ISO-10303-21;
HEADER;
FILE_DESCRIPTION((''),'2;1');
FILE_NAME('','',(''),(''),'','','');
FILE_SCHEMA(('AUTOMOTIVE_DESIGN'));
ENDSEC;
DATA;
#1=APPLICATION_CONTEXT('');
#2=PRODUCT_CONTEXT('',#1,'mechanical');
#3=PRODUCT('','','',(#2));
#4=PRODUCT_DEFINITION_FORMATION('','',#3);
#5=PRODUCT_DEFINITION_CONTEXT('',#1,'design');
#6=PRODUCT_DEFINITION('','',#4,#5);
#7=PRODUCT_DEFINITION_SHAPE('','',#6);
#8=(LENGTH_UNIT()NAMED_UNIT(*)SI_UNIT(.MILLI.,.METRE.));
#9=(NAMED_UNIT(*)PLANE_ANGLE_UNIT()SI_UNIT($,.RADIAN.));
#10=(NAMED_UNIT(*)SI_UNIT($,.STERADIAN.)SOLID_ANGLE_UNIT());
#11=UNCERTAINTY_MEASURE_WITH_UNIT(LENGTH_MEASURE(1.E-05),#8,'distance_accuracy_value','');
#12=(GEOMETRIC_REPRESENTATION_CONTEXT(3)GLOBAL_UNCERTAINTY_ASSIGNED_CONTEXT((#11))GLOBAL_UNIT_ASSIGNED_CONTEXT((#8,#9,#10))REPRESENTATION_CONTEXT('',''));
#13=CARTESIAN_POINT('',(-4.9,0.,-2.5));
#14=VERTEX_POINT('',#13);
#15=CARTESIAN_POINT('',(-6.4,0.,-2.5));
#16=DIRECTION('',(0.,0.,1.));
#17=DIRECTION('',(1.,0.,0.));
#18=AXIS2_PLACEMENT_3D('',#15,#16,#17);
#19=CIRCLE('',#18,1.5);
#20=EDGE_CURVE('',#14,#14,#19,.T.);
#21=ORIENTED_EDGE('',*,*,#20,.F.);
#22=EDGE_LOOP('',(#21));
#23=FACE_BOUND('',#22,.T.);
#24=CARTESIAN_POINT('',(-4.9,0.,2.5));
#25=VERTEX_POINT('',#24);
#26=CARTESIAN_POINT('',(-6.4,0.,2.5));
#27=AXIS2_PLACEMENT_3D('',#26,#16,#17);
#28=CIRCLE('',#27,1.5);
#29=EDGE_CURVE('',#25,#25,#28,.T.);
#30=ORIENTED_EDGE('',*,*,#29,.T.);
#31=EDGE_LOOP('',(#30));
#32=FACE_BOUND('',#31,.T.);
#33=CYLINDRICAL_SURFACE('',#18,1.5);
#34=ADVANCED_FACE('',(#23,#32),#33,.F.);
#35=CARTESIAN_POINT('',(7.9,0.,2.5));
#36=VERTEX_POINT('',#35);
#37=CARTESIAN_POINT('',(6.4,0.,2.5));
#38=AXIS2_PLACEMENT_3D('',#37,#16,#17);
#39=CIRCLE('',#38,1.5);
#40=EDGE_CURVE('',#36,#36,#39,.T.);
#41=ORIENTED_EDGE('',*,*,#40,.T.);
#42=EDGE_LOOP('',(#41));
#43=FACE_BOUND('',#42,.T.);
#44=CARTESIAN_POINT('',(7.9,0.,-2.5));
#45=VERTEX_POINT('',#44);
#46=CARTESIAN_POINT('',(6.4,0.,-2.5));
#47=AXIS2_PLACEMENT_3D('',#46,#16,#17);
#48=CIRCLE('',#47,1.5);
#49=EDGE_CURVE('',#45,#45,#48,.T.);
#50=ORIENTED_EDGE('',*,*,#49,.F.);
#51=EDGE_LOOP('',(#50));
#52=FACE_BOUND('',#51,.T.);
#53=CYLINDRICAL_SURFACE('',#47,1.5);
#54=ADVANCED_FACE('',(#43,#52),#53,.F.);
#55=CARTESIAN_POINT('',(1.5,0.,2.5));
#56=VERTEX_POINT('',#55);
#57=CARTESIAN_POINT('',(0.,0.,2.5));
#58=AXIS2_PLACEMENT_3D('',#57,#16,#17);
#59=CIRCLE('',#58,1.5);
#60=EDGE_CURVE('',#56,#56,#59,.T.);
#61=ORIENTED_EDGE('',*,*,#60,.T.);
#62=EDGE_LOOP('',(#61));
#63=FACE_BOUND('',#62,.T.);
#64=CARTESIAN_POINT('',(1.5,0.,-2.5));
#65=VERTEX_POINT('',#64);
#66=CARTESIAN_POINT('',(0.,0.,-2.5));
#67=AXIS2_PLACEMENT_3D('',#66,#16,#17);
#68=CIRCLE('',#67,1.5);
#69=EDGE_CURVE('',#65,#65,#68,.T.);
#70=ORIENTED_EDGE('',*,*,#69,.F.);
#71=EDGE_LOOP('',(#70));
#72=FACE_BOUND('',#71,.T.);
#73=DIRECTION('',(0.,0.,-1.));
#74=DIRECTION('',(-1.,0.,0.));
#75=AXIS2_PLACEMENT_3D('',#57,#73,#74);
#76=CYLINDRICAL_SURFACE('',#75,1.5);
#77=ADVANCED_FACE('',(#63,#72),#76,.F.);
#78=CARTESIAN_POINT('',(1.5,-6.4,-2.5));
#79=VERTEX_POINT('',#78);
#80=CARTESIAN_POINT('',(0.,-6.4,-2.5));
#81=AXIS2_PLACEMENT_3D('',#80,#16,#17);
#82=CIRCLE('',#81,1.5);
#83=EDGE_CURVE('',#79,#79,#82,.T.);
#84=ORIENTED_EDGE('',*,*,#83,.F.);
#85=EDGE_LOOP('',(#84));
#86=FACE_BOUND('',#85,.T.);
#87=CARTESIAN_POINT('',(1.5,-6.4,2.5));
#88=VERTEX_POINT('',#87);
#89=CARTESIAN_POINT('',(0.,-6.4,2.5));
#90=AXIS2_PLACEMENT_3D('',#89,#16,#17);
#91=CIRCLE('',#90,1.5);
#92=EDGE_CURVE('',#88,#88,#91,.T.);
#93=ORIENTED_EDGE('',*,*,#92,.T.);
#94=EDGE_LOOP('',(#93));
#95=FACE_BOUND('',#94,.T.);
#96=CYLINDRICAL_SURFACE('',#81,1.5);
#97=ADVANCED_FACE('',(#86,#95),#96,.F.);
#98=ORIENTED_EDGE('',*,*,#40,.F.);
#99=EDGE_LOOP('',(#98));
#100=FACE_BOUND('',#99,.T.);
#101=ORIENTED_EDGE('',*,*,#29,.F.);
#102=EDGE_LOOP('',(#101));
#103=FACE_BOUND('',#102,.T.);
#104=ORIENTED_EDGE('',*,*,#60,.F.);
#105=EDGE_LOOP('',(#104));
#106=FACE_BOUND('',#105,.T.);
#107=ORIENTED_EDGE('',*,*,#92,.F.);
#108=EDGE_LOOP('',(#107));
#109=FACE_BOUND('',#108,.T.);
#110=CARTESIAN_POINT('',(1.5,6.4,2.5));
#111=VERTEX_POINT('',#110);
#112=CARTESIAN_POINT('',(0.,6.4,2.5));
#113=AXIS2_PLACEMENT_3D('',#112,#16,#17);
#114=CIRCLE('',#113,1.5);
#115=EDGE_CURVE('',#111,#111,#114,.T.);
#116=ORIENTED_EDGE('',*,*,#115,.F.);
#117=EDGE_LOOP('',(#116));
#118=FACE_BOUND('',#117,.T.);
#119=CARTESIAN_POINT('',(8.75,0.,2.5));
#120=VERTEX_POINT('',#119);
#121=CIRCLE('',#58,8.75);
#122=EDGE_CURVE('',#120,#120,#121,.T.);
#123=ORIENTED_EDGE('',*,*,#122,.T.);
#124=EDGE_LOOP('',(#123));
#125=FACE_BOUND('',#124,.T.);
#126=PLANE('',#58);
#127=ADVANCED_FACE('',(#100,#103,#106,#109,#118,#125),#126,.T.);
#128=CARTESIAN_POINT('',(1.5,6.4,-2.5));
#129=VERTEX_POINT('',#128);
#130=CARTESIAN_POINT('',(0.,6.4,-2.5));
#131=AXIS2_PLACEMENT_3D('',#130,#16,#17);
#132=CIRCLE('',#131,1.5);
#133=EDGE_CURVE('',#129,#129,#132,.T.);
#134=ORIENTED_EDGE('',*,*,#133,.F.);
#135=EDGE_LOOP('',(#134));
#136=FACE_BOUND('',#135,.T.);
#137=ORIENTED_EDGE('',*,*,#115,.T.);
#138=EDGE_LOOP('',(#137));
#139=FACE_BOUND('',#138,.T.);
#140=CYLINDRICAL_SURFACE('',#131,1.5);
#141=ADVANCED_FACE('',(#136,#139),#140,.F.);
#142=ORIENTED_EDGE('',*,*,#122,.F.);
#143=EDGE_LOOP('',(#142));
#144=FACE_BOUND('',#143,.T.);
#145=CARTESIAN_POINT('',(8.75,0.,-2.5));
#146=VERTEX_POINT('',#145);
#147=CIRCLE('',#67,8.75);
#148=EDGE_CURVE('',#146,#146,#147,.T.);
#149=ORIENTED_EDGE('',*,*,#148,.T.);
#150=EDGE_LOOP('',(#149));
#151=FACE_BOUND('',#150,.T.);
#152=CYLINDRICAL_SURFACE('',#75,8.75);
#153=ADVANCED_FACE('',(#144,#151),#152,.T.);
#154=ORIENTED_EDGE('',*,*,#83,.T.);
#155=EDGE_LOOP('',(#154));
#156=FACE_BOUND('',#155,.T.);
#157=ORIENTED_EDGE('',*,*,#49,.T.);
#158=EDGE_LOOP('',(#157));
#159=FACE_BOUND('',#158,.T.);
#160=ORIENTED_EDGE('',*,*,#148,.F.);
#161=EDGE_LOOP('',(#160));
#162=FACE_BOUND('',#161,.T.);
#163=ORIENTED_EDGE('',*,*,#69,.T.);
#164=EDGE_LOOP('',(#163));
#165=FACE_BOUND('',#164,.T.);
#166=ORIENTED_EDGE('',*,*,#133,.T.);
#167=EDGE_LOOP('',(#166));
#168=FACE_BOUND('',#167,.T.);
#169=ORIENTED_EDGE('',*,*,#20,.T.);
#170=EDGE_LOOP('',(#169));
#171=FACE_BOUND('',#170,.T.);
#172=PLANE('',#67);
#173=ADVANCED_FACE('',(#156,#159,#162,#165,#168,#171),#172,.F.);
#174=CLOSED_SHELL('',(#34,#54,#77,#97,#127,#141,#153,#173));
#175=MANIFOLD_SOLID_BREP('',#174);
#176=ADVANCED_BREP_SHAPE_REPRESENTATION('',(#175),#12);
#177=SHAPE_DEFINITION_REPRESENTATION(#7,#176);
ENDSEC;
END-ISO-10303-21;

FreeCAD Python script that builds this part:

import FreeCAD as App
import Part
import Sketcher

V = App.Vector

doc = App.newDocument("Part")
body = doc.addObject("PartDesign::Body", "Body")

# Sketch on XY plane
sketch1 = body.newObject("Sketcher::SketchObject", "Sketch")
sketch1.AttachmentSupport = (doc.getObject("XY_Plane"), [""])
sketch1.MapMode = "FlatFace"
sketch1.addGeometry([
    Part.Circle(V(0, 0, 0), V(0, 0, 1), 8.8),
    Part.Circle(V(0, 0, 0), V(0, 0, 1), 1.5),
], False)
sketch1.addConstraint([
    Sketcher.Constraint("Coincident", 0, 3, -1, 1),
    Sketcher.Constraint("Coincident", 1, 3, -1, 1),
    Sketcher.Constraint("Diameter", 1, 3.0),
    Sketcher.Constraint("Diameter", 0, 17.5),
])
pad1 = body.newObject("PartDesign::Pad", "Pad")
pad1.Profile = sketch1
pad1.Length = 5
pad1.Midplane = True

# Sketch on XY plane
sketch2 = body.newObject("Sketcher::SketchObject", "Sketch001")
sketch2.AttachmentSupport = (doc.getObject("XY_Plane"), [""])
sketch2.MapMode = "FlatFace"
sketch2.addGeometry([
    Part.Circle(V(0, 6.4, 0), V(0, 0, 1), 1.5),
    Part.Circle(V(6.4, 0, 0), V(0, 0, 1), 1.5),
    Part.Circle(V(0, -6.4, 0), V(0, 0, 1), 1.5),
    Part.Circle(V(-6.4, 0, 0), V(0, 0, 1), 1.5),
], False)
sketch2.addConstraint([
    Sketcher.Constraint("Equal", 0, 1),
    Sketcher.Constraint("Equal", 1, 2),
    Sketcher.Constraint("Equal", 2, 3),
    Sketcher.Constraint("Symmetric", 0, 3, 2, 3, -1, 1),
    Sketcher.Constraint("Symmetric", 1, 3, 3, 3, -1, 1),
    Sketcher.Constraint("PointOnObject", 0, 3, -2),
    Sketcher.Constraint("PointOnObject", 1, 3, -1),
    Sketcher.Constraint("Diameter", 0, 3.0),
    Sketcher.Constraint("DistanceY", -1, 1, 0, 3, 6.4),
    Sketcher.Constraint("DistanceX", -1, 1, 1, 3, 6.4),
])
pocket1 = body.newObject("PartDesign::Pocket", "Pocket")
pocket1.Profile = sketch2
pocket1.Type = "ThroughAll"
pocket1.Midplane = True

doc.recompute()
